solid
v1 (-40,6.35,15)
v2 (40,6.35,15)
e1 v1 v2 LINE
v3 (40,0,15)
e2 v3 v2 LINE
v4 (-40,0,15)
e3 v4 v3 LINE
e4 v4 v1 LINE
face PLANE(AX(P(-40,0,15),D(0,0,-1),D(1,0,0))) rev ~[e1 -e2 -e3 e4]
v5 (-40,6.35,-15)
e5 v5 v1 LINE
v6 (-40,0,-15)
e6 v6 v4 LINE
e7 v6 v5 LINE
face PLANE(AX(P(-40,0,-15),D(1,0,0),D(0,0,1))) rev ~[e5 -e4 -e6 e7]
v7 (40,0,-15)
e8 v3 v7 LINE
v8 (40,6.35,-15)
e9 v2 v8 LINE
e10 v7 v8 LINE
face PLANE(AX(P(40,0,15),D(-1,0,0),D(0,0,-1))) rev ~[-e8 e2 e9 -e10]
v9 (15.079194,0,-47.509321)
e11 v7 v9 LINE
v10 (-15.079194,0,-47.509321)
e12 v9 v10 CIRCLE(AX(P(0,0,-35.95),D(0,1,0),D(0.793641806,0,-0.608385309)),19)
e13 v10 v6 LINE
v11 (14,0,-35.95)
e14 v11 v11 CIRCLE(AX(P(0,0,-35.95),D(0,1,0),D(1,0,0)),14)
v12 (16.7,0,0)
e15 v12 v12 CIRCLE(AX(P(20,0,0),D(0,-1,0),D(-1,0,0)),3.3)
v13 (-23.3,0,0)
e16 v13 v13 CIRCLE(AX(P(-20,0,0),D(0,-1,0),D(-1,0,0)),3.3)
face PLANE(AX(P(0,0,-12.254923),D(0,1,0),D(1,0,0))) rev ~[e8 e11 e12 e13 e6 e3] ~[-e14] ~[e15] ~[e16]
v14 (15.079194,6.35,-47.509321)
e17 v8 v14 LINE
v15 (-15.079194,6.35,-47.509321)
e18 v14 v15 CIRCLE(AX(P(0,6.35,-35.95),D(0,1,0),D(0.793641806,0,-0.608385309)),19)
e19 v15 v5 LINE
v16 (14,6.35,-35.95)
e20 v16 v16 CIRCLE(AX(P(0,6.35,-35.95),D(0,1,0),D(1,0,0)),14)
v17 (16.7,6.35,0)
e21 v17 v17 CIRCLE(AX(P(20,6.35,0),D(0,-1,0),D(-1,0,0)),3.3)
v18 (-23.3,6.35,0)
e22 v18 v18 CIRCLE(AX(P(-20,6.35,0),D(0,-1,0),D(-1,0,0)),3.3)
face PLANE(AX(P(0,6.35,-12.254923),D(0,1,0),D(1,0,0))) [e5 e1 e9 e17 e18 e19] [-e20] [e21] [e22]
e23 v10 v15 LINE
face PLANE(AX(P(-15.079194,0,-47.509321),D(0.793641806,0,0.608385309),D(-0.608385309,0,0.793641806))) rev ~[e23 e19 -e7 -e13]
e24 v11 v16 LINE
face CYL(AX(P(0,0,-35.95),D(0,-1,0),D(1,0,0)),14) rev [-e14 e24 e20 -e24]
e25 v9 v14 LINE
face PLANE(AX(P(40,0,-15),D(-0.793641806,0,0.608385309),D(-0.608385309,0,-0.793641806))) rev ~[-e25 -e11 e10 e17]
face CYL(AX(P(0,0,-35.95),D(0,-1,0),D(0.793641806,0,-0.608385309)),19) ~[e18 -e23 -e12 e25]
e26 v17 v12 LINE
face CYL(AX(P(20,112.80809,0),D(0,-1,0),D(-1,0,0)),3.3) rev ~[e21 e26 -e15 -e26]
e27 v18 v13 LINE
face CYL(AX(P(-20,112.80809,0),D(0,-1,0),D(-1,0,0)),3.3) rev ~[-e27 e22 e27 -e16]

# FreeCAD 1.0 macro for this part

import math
import FreeCAD as App
import Part
import Sketcher
from FreeCAD import Vector

doc = App.newDocument("Part")
params = doc.addObject("Spreadsheet::Sheet", "Params")
for row, (alias, value) in enumerate([
    ("sketch1_diameter", "28 mm"),
    ("sketch1_radius", "19 mm"),
    ("sketch1_width", "80 mm"),
    ("sketch1_height", "30 mm"),
    ("pad1_length", "6.35 mm"),
    ("sketch2_diameter", "6.6 mm"),
    ("hole_diameter", "6.6 mm"),
], start=1):
    params.set(f"A{row}", alias)
    params.set(f"B{row}", "=" + value)
    params.setAlias(f"B{row}", alias)

body = doc.addObject("PartDesign::Body", "Body")

sketch1 = doc.addObject("Sketcher::SketchObject", "Sketch")
body.addObject(sketch1)
sketch1.AttachmentSupport = (doc.XZ_Plane, [""])
sketch1.MapMode = "FlatFace"
sketch1.addGeometry(Part.LineSegment(Vector(40, 15, 0), Vector(40, -15, 0)), False)
sketch1.addGeometry(Part.LineSegment(Vector(40, -15, 0), Vector(15, -48, 0)), False)
sketch1.addGeometry(Part.ArcOfCircle(Part.Circle(Vector(0, -36, 0), Vector(0, 0, 1), 19), math.radians(-143), math.radians(-37)), False)
sketch1.addGeometry(Part.LineSegment(Vector(-15, -48, 0), Vector(-40, -15, 0)), False)
sketch1.addGeometry(Part.LineSegment(Vector(-40, -15, 0), Vector(-40, 15, 0)), False)
sketch1.addGeometry(Part.LineSegment(Vector(-40, 15, 0), Vector(40, 15, 0)), False)
sketch1.addGeometry(Part.Circle(Vector(0, -36, 0), Vector(0, 0, 1), 14), False)
sketch1.addConstraint(Sketcher.Constraint("Coincident", 0, 2, 1, 1))
sketch1.addConstraint(Sketcher.Constraint("Tangent", 1, 2, 2, 2))
sketch1.addConstraint(Sketcher.Constraint("Tangent", 2, 1, 3, 1))
sketch1.addConstraint(Sketcher.Constraint("Coincident", 3, 2, 4, 1))
sketch1.addConstraint(Sketcher.Constraint("Coincident", 4, 2, 5, 1))
sketch1.addConstraint(Sketcher.Constraint("Coincident", 5, 2, 0, 1))
sketch1.addConstraint(Sketcher.Constraint("Vertical", 0))
sketch1.addConstraint(Sketcher.Constraint("Vertical", 4))
sketch1.addConstraint(Sketcher.Constraint("Horizontal", 5))
sketch1.addConstraint(Sketcher.Constraint("Coincident", 6, 3, 2, 3))
sketch1.addConstraint(Sketcher.Constraint("Symmetric", 0, 2, 4, 2, -1, 1))
sketch1.addConstraint(Sketcher.Constraint("Symmetric", 1, 2, 2, 1, -2))
sketch1.addConstraint(Sketcher.Constraint("Diameter", 6, 28.0))
sketch1.addConstraint(Sketcher.Constraint("Radius", 2, 19.0))
sketch1.addConstraint(Sketcher.Constraint("DistanceX", 5, 1, 5, 2, 80.0))
sketch1.addConstraint(Sketcher.Constraint("DistanceY", 0, 2, 0, 1, 30.0))
sketch1.addConstraint(Sketcher.Constraint("DistanceY", 2, 3, -1, 1, 35.95))
sketch1.setExpression("Constraints[12]", "Params.sketch1_diameter")
sketch1.setExpression("Constraints[13]", "Params.sketch1_radius")
sketch1.setExpression("Constraints[14]", "Params.sketch1_width")
sketch1.setExpression("Constraints[15]", "Params.sketch1_height")
pad1 = doc.addObject("PartDesign::Pad", "Pad")
body.addObject(pad1)
pad1.Profile = sketch1
pad1.setExpression("Length", "Params.pad1_length")
pad1.Reversed = True

sketch2 = doc.addObject("Sketcher::SketchObject", "Sketch001")
body.addObject(sketch2)
sketch2.AttachmentSupport = (doc.XZ_Plane, [""])
sketch2.MapMode = "FlatFace"
sketch2.AttachmentOffset = App.Placement(Vector(0, 0, -6.35), App.Rotation())
sketch2.addGeometry(Part.Circle(Vector(-20, 0, 0), Vector(0, 0, 1), 3.3), False)
sketch2.addGeometry(Part.Circle(Vector(20, 0, 0), Vector(0, 0, 1), 3.3), False)
sketch2.addConstraint(Sketcher.Constraint("Equal", 0, 1))
sketch2.addConstraint(Sketcher.Constraint("Symmetric", 0, 3, 1, 3, -1, 1))
sketch2.addConstraint(Sketcher.Constraint("PointOnObject", 0, 3, -1))
sketch2.addConstraint(Sketcher.Constraint("Diameter", 0, 6.6))
sketch2.addConstraint(Sketcher.Constraint("DistanceX", 0, 3, -1, 1, 20.0))
sketch2.setExpression("Constraints[3]", "Params.sketch2_diameter")
doc.recompute()
hole = doc.addObject("PartDesign::Hole", "Hole")
body.addObject(hole)
hole.Profile = sketch2
hole.ThreadType = "None"
hole.setExpression("Diameter", "Params.hole_diameter")
hole.DepthType = "ThroughAll"
hole.Reversed = True

doc.recompute()
